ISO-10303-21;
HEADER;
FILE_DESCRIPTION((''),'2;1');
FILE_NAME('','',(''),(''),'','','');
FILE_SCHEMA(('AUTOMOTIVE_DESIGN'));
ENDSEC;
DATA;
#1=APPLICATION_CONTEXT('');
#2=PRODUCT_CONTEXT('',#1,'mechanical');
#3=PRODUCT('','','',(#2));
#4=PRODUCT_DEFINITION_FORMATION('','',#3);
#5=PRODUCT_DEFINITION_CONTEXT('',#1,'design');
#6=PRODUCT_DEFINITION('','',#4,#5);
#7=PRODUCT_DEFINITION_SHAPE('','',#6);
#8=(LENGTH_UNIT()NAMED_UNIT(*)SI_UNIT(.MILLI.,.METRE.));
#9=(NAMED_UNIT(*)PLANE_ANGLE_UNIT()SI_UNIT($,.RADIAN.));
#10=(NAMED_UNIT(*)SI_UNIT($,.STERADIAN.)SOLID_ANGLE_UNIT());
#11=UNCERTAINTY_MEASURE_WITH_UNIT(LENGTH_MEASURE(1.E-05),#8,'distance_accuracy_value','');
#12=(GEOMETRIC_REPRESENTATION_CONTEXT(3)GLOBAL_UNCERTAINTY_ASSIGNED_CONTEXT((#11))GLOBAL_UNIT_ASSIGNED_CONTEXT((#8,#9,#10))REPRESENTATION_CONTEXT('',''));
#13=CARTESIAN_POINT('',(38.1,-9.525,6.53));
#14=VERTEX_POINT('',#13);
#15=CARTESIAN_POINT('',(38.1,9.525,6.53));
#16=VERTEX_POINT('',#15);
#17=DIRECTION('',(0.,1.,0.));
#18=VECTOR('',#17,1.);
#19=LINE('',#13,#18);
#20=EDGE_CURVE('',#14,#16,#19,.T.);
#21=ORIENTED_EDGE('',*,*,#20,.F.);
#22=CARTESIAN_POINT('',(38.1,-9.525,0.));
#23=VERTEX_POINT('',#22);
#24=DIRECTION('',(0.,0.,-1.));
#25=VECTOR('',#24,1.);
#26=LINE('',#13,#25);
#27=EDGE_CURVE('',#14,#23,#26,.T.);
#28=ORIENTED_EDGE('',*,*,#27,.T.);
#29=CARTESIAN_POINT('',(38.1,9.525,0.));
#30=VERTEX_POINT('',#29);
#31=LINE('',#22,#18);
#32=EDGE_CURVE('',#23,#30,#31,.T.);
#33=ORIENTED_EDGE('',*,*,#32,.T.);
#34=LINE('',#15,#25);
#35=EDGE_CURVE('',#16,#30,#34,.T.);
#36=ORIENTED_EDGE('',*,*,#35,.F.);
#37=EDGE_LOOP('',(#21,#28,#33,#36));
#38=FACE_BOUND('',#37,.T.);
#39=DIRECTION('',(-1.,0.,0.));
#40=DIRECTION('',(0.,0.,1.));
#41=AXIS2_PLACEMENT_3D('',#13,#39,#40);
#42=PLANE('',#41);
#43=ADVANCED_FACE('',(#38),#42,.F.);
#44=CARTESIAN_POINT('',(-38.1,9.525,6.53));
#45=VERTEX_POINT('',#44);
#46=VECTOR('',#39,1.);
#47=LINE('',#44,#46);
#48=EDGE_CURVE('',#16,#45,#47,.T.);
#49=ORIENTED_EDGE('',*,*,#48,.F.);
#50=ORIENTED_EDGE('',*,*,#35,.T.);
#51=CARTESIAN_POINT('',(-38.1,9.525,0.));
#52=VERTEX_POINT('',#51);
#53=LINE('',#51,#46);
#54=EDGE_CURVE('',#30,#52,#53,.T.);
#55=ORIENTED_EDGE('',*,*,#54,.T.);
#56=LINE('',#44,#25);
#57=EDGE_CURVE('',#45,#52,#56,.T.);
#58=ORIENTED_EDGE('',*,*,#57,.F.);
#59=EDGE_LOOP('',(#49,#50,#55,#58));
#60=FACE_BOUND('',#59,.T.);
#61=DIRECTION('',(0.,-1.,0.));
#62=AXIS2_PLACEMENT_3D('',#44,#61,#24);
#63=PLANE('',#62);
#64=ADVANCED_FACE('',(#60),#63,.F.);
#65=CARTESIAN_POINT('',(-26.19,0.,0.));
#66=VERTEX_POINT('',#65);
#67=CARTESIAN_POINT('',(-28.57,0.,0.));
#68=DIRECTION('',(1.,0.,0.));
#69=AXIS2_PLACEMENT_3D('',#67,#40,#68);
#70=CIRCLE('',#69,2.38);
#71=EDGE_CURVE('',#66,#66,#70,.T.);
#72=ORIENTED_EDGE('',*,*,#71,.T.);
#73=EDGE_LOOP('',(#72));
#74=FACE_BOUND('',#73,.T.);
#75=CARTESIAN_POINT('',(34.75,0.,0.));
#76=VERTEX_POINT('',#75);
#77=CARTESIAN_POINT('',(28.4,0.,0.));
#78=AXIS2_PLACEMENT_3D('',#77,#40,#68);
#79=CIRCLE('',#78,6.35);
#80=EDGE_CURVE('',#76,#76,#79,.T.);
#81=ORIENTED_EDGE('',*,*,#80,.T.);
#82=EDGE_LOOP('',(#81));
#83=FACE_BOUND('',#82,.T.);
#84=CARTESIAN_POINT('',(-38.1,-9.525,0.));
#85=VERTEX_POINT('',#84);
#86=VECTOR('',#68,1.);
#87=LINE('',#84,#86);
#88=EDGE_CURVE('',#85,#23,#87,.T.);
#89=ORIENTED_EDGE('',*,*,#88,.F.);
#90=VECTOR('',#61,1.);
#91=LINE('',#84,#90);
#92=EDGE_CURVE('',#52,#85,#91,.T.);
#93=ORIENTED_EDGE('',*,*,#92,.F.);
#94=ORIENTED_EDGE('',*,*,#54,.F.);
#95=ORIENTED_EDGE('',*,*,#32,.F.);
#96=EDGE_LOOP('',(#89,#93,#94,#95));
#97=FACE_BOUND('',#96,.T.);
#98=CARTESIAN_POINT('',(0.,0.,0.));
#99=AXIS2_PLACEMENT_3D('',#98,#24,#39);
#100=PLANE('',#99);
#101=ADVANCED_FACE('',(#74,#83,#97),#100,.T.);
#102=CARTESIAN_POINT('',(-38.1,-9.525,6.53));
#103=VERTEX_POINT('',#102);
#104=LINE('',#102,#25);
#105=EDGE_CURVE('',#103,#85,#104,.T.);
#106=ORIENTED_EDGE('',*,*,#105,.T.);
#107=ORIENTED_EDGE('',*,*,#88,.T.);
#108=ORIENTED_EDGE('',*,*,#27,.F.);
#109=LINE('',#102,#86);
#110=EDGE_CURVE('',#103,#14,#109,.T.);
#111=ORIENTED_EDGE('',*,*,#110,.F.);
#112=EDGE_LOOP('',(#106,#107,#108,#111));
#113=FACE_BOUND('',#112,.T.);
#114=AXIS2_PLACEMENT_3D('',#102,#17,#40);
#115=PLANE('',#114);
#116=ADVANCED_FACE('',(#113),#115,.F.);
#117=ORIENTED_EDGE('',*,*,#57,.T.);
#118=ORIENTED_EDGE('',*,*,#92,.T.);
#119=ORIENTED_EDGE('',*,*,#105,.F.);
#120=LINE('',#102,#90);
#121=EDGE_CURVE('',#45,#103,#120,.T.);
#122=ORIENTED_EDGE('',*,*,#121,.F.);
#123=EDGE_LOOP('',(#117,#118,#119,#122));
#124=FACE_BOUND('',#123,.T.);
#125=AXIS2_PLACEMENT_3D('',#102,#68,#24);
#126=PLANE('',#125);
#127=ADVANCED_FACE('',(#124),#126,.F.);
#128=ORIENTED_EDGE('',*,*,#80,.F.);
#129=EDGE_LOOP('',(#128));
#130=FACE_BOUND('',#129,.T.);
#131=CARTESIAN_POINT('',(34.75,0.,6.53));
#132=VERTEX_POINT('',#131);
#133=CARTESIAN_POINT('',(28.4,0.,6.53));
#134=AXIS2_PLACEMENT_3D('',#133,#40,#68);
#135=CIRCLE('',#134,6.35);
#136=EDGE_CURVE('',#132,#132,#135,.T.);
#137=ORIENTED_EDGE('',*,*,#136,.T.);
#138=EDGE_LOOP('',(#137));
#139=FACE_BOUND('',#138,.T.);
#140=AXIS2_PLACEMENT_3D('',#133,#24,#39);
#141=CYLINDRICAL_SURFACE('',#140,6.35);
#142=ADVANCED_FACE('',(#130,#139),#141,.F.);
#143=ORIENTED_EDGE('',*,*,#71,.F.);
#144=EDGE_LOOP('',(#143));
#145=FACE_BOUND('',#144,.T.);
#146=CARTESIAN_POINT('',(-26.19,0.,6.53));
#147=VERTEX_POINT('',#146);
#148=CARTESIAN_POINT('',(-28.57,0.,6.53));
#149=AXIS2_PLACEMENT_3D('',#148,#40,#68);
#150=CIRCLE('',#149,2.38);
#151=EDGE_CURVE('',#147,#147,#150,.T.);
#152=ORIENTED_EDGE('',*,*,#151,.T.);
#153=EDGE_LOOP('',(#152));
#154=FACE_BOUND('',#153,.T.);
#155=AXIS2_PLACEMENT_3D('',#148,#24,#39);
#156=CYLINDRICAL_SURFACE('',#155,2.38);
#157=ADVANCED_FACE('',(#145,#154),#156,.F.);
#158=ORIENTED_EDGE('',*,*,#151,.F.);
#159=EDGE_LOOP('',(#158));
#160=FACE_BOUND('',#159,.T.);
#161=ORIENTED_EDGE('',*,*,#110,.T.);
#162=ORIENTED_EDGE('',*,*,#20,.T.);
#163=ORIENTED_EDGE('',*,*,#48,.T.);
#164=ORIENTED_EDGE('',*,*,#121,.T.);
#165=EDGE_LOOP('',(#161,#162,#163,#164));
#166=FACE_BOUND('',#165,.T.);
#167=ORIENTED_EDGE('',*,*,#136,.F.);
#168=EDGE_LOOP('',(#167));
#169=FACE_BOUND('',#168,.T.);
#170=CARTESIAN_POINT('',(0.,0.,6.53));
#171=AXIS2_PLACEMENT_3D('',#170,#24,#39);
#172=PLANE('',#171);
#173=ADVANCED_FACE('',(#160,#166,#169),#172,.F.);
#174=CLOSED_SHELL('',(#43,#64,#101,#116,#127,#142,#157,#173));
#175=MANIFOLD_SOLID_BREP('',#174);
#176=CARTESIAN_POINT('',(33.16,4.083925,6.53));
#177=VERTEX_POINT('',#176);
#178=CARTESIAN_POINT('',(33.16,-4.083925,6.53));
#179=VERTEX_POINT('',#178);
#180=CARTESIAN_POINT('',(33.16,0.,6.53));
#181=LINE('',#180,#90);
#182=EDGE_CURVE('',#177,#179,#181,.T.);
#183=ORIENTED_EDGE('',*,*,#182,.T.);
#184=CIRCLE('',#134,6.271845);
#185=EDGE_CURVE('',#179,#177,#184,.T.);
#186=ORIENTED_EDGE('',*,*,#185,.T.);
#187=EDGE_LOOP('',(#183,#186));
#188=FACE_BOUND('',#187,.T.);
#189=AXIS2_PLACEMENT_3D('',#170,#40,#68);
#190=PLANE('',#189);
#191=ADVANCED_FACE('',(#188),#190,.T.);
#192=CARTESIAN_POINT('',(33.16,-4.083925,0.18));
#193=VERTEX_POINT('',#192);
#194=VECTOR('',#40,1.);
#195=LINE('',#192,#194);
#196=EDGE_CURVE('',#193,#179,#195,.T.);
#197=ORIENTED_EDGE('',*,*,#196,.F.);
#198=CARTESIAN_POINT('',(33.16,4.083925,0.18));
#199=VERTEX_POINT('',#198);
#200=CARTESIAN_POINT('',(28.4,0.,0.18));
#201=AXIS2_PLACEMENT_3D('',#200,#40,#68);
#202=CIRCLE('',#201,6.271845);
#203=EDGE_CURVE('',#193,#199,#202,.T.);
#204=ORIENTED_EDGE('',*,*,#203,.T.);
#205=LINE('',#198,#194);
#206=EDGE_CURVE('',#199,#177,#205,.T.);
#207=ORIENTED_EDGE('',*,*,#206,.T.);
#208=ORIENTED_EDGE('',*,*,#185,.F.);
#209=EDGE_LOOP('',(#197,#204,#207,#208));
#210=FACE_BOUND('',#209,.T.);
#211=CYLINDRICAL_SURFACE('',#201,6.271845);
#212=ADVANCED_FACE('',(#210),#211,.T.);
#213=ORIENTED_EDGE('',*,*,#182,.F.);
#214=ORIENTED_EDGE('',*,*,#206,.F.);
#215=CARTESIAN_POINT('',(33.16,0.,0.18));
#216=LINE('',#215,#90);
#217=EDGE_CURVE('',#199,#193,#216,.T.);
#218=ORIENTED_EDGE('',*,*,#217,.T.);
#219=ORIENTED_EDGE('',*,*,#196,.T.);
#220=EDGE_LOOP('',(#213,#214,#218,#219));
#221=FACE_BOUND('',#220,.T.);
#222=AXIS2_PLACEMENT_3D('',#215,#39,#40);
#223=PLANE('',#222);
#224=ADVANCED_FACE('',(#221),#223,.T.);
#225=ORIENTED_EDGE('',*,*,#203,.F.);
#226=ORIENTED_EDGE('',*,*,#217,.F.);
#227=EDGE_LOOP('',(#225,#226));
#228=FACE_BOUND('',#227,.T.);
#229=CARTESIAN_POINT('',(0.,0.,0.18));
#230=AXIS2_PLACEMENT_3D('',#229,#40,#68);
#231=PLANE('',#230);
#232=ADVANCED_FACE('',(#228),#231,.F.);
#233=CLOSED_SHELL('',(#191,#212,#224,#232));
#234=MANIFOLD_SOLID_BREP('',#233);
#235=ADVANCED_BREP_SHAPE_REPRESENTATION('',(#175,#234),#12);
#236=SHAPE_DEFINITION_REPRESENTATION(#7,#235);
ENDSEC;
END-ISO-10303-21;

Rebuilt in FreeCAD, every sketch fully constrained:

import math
import FreeCAD as App
import Part
import Sketcher
Q = App.Units.Quantity

doc = App.newDocument("Part")
body = doc.addObject("PartDesign::Body", "Body")

# Sketch on XY plane
sketch1 = body.newObject("Sketcher::SketchObject", "Sketch")
sketch1.AttachmentSupport = (doc.getObject("XY_Plane"), [""])
sketch1.MapMode = "FlatFace"
sketch1.addGeometry(Part.LineSegment(App.Vector(-38.1, 9.5, 0), App.Vector(-38.1, -9.5, 0)), False)
sketch1.addGeometry(Part.LineSegment(App.Vector(-38.1, -9.5, 0), App.Vector(38.1, -9.5, 0)), False)
sketch1.addGeometry(Part.LineSegment(App.Vector(38.1, -9.5, 0), App.Vector(38.1, 9.5, 0)), False)
sketch1.addGeometry(Part.LineSegment(App.Vector(38.1, 9.5, 0), App.Vector(-38.1, 9.5, 0)), False)
sketch1.addGeometry(Part.Circle(App.Vector(-28.6, 0, 0), App.Vector(0, 0, 1), 2.4), False)
sketch1.addGeometry(Part.Circle(App.Vector(28.4, 0, 0), App.Vector(0, 0, 1), 6.3), False)
sketch1.addConstraint(Sketcher.Constraint("Coincident", 0, 2, 1, 1))
sketch1.addConstraint(Sketcher.Constraint("Coincident", 1, 2, 2, 1))
sketch1.addConstraint(Sketcher.Constraint("Coincident", 2, 2, 3, 1))
sketch1.addConstraint(Sketcher.Constraint("Coincident", 3, 2, 0, 1))
sketch1.addConstraint(Sketcher.Constraint("Vertical", 0))
sketch1.addConstraint(Sketcher.Constraint("Horizontal", 1))
sketch1.addConstraint(Sketcher.Constraint("Vertical", 2))
sketch1.addConstraint(Sketcher.Constraint("Horizontal", 3))
sketch1.addConstraint(Sketcher.Constraint("Symmetric", 0, 2, 2, 2, -1, 1))
sketch1.addConstraint(Sketcher.Constraint("PointOnObject", 4, 3, -1))
sketch1.addConstraint(Sketcher.Constraint("PointOnObject", 5, 3, -1))
sketch1.addConstraint(Sketcher.Constraint("Diameter", 5, Q("0.5 in")))
sketch1.addConstraint(Sketcher.Constraint("DistanceX", 1, 1, 1, 2, Q("3 in")))
sketch1.addConstraint(Sketcher.Constraint("DistanceY", 0, 2, 0, 1, Q("0.75 in")))
sketch1.addConstraint(Sketcher.Constraint("Diameter", 4, Q("4.76 mm")))
sketch1.addConstraint(Sketcher.Constraint("DistanceX", 4, 3, -1, 1, Q("28.57 mm")))
sketch1.addConstraint(Sketcher.Constraint("DistanceX", -1, 1, 5, 3, Q("28.4 mm")))
pad1 = body.newObject("PartDesign::Pad", "Pad")
pad1.Profile = sketch1
pad1.Length = 6.53
body2 = doc.addObject("PartDesign::Body", "Body001")

# Sketch on XY plane
sketch2 = body2.newObject("Sketcher::SketchObject", "Sketch001")
sketch2.AttachmentSupport = (doc.getObject("XY_Plane001"), [""])
sketch2.MapMode = "FlatFace"
sketch2.AttachmentOffset = App.Placement(App.Vector(0, 0, 6.53), App.Rotation())
sketch2.addGeometry(Part.ArcOfCircle(Part.Circle(App.Vector(28.4, 0, 0), App.Vector(0, 0, 1), 6.3), math.radians(0), math.radians(41)), False)
sketch2.addGeometry(Part.LineSegment(App.Vector(33.2, 4.1, 0), App.Vector(33.2, -4.1, 0)), False)
sketch2.addGeometry(Part.ArcOfCircle(Part.Circle(App.Vector(28.4, 0, 0), App.Vector(0, 0, 1), 6.3), math.radians(-41), math.radians(0)), False)
sketch2.addConstraint(Sketcher.Constraint("Coincident", 0, 2, 1, 1))
sketch2.addConstraint(Sketcher.Constraint("Coincident", 1, 2, 2, 1))
sketch2.addConstraint(Sketcher.Constraint("Tangent", 2, 2, 0, 1))
sketch2.addConstraint(Sketcher.Constraint("Vertical", 1))
sketch2.addConstraint(Sketcher.Constraint("Equal", 0, 2))
sketch2.addConstraint(Sketcher.Constraint("PointOnObject", 0, 3, -1))
sketch2.addConstraint(Sketcher.Constraint("PointOnObject", 2, 2, -1))
sketch2.addConstraint(Sketcher.Constraint("Radius", 0, Q("6.271845 mm")))
sketch2.addConstraint(Sketcher.Constraint("DistanceY", 1, 2, 1, 1, Q("8.167851 mm")))
sketch2.addConstraint(Sketcher.Constraint("DistanceX", -1, 1, 0, 3, Q("28.4 mm")))
pad2 = body2.newObject("PartDesign::Pad", "Pad001")
pad2.Profile = sketch2
pad2.Length = Q("0.25 in")
pad2.Reversed = True

doc.recompute()
